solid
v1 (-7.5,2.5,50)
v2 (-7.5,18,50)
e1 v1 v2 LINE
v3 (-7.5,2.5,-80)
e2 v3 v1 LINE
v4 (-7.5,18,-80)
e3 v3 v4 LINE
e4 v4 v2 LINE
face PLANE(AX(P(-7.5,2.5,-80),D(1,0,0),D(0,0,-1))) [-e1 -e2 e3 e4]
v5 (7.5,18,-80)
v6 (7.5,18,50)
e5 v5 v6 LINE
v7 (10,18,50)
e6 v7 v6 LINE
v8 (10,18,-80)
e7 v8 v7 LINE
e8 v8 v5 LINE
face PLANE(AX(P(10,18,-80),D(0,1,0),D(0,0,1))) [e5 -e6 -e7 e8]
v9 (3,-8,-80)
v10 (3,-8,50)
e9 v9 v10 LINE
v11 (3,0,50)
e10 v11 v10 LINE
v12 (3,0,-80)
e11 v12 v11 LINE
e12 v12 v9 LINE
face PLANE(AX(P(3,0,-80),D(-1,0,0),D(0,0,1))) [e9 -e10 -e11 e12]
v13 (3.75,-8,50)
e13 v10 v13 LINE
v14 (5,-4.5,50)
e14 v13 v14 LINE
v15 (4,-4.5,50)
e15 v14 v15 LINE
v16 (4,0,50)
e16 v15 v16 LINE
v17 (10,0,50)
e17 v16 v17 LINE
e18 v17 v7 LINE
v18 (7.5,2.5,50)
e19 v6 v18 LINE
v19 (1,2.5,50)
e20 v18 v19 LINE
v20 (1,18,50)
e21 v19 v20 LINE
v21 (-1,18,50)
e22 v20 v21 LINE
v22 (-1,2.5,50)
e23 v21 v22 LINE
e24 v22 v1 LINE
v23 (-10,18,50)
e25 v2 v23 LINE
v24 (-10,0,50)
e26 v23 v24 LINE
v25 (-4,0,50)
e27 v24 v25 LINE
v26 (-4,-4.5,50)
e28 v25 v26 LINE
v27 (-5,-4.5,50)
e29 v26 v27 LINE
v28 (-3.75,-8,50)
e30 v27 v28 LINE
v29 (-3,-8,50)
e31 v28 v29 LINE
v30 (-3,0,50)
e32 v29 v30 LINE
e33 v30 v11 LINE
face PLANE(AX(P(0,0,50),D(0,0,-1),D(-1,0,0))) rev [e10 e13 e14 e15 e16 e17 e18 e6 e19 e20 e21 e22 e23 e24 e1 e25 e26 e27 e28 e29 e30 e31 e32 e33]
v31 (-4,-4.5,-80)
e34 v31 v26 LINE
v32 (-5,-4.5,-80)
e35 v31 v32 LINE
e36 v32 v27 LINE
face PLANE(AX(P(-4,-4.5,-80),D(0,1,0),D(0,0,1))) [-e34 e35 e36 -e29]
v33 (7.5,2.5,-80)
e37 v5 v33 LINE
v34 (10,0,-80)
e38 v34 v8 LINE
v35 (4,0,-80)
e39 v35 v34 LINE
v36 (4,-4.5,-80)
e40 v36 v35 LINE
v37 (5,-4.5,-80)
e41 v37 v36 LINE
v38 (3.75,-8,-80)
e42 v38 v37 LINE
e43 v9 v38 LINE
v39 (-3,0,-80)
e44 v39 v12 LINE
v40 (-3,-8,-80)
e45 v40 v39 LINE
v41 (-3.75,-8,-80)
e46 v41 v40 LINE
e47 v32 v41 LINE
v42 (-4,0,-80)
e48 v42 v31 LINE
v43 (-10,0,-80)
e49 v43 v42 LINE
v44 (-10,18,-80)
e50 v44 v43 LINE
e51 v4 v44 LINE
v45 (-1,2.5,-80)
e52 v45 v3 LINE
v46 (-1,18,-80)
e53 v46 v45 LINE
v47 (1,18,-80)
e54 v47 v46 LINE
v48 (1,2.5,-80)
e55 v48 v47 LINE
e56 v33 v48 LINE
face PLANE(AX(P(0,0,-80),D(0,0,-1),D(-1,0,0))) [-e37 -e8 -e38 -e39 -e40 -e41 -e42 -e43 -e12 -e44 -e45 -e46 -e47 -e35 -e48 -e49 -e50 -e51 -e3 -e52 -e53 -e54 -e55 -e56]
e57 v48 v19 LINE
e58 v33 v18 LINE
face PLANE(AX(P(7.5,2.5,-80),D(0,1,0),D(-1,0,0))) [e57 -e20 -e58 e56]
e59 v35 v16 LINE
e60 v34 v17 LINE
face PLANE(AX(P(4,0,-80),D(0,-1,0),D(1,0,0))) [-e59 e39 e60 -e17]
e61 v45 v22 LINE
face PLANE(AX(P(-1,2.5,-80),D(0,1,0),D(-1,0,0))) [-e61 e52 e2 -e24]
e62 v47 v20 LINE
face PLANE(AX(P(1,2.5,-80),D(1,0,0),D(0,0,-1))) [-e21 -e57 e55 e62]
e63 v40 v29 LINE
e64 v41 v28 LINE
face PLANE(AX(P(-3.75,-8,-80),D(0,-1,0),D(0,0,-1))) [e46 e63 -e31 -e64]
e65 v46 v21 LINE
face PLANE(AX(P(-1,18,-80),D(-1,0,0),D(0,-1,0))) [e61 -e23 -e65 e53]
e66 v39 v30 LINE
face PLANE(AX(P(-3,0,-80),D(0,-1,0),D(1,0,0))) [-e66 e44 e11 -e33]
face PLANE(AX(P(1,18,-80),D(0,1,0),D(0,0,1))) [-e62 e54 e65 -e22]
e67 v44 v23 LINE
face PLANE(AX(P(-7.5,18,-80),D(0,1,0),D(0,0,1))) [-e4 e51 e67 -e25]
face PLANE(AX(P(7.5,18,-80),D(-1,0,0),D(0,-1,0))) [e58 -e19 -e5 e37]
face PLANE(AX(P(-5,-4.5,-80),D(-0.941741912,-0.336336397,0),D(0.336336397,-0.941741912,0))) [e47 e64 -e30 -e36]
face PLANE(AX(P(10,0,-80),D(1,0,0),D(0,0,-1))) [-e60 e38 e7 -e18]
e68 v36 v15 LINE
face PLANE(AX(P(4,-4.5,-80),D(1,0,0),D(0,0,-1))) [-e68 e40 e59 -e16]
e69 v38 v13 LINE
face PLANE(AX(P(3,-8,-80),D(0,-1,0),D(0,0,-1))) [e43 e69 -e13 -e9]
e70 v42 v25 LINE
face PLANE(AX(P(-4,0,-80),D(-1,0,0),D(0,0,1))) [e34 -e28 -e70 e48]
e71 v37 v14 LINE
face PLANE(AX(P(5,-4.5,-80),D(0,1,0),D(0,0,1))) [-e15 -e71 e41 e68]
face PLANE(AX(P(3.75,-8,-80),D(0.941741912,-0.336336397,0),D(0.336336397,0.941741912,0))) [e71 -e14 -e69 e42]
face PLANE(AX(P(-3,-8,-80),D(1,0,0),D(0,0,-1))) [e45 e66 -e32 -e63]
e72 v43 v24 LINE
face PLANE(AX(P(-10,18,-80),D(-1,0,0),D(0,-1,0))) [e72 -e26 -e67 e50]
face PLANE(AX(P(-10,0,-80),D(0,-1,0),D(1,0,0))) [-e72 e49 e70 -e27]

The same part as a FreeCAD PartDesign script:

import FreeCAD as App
import Part
import Sketcher
from FreeCAD import Vector
Q = App.Units.Quantity


def add_polygon(sketch, points):
    """Adds a closed chain of lines whose ends are joined by coincident constraints."""
    first, n = sketch.GeometryCount, len(points)
    for a, b in zip(points, points[1:] + points[:1]):
        sketch.addGeometry(Part.LineSegment(App.Vector(*a, 0), App.Vector(*b, 0)), False)
    for i in range(n):
        sketch.addConstraint(Sketcher.Constraint("Coincident", first + i, 2, first + (i + 1) % n, 1))

doc = App.newDocument("Part")
body = doc.addObject("PartDesign::Body", "Body")

# Sketch on XY plane
sketch1 = body.newObject("Sketcher::SketchObject", "Sketch")
sketch1.AttachmentSupport = (doc.getObject("XY_Plane"), [""])
sketch1.MapMode = "FlatFace"
sketch1.AttachmentOffset = App.Placement(Vector(0, 0, 50), App.Rotation())
add_polygon(sketch1, [(-1, 2.5), (-7.5, 2.5), (-7.5, 18), (-10, 18), (-10, 0), (-4, 0), (-4, -4.5), (-5, -4.5), (-3.8, -8), (-3, -8), (-3, 0), (3, 0), (3, -8), (3.8, -8), (5, -4.5), (4, -4.5), (4, 0), (10, 0), (10, 18), (7.5, 18), (7.5, 2.5), (1, 2.5), (1, 18), (-1, 18)])  # lines 0-23
sketch1.addConstraint([
    Sketcher.Constraint("Horizontal", 0),
    Sketcher.Constraint("Vertical", 1),
    Sketcher.Constraint("Horizontal", 2),
    Sketcher.Constraint("Vertical", 3),
    Sketcher.Constraint("Horizontal", 4),
    Sketcher.Constraint("Vertical", 5),
    Sketcher.Constraint("Horizontal", 6),
    Sketcher.Constraint("Horizontal", 8),
    Sketcher.Constraint("Vertical", 9),
    Sketcher.Constraint("Horizontal", 10),
    Sketcher.Constraint("Vertical", 11),
    Sketcher.Constraint("Horizontal", 12),
    Sketcher.Constraint("Horizontal", 14),
    Sketcher.Constraint("Vertical", 15),
    Sketcher.Constraint("Horizontal", 16),
    Sketcher.Constraint("Vertical", 17),
    Sketcher.Constraint("Horizontal", 18),
    Sketcher.Constraint("Vertical", 19),
    Sketcher.Constraint("Horizontal", 20),
    Sketcher.Constraint("Vertical", 21),
    Sketcher.Constraint("Horizontal", 22),
    Sketcher.Constraint("Vertical", 23),
    Sketcher.Constraint("Symmetric", 9, 2, 10, 2, -1, 1),
    Sketcher.Constraint("Symmetric", 4, 2, 15, 2, -1, 1),
    Sketcher.Constraint("Symmetric", 7, 2, 12, 2, -2),
    Sketcher.Constraint("Symmetric", 6, 2, 13, 2, -2),
    Sketcher.Constraint("Symmetric", 3, 2, 16, 2, -2),
    Sketcher.Constraint("Symmetric", 1, 2, 18, 2, -2),
    Sketcher.Constraint("Symmetric", 20, 2, 23, 2, -2),
    Sketcher.Constraint("Horizontal", 18, 2, 21, 2),
    Sketcher.Constraint("Equal", 4, 10),
    Sketcher.Constraint("DistanceX", 4, 1, 4, 2, Q("6 mm")),
    Sketcher.Constraint("DistanceX", 6, 2, 6, 1, Q("1 mm")),
    Sketcher.Constraint("DistanceX", 22, 2, 22, 1, Q("2 mm")),
    Sketcher.Constraint("DistanceY", 3, 2, 3, 1, Q("18 mm")),
    Sketcher.Constraint("DistanceY", 9, 1, 9, 2, Q("8 mm")),
    Sketcher.Constraint("DistanceX", 0, 2, 0, 1, Q("6.5 mm")),
    Sketcher.Constraint("DistanceX", 2, 2, 2, 1, Q("2.5 mm")),
    Sketcher.Constraint("DistanceY", 1, 1, 1, 2, Q("15.5 mm")),
    Sketcher.Constraint("DistanceY", 5, 2, 5, 1, Q("4.5 mm")),
    Sketcher.Constraint("DistanceX", 8, 1, 8, 2, Q("0.75 mm")),
])
pad1 = body.newObject("PartDesign::Pad", "Pad")
pad1.Profile = sketch1
pad1.Length = 130
pad1.Reversed = True

doc.recompute()
